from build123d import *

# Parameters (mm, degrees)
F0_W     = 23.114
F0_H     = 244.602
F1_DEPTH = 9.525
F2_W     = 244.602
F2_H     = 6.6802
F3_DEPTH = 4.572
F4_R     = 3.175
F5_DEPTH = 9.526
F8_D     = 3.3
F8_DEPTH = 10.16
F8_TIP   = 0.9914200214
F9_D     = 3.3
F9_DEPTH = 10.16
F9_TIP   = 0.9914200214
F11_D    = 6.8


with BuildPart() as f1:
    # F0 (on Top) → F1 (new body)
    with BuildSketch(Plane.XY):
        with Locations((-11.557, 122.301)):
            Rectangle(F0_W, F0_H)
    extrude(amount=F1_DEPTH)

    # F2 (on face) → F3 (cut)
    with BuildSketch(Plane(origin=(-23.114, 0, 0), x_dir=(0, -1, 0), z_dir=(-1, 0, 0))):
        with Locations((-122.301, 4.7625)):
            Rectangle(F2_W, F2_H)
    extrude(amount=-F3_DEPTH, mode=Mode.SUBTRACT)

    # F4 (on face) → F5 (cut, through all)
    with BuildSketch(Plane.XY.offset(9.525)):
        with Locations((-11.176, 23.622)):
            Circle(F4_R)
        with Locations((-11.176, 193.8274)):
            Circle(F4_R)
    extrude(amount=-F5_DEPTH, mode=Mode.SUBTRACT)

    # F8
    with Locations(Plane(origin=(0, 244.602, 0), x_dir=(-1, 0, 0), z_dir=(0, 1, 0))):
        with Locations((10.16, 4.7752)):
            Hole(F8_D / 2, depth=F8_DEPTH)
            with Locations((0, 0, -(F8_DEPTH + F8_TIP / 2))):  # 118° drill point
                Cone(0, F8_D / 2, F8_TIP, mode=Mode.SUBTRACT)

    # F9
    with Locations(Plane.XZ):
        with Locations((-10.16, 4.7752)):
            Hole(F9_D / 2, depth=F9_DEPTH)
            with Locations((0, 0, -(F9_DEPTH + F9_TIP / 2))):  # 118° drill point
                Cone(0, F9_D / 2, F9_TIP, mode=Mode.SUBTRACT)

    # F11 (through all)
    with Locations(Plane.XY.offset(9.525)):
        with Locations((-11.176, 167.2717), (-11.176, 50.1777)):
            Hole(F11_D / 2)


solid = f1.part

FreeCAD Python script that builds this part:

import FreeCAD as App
import Part
import Sketcher

V = App.Vector
Q = App.Units.Quantity


def add_polygon(sketch, points):
    """Adds a closed chain of lines whose ends are joined by coincident constraints."""
    first, n = sketch.GeometryCount, len(points)
    for a, b in zip(points, points[1:] + points[:1]):
        sketch.addGeometry(Part.LineSegment(App.Vector(*a, 0), App.Vector(*b, 0)), False)
    for i in range(n):
        sketch.addConstraint(Sketcher.Constraint("Coincident", first + i, 2, first + (i + 1) % n, 1))

doc = App.newDocument("Part")
body = doc.addObject("PartDesign::Body", "Body")

sketch1 = body.newObject("Sketcher::SketchObject", "Sketch")
sketch1.AttachmentSupport = (doc.getObject("XY_Plane"), [""])
sketch1.MapMode = "FlatFace"
add_polygon(sketch1, [(-23, 245), (-23, 0), (0, 0), (0, 245)])
sketch1.addConstraint([
    Sketcher.Constraint("Vertical", 0),
    Sketcher.Constraint("Horizontal", 1),
    Sketcher.Constraint("Vertical", 2),
    Sketcher.Constraint("Horizontal", 3),
    Sketcher.Constraint("Coincident", 1, 2, -1, 1),
    Sketcher.Constraint("DistanceX", 1, 1, 1, 2, Q("0.91 in")),
    Sketcher.Constraint("DistanceY", 0, 2, 0, 1, Q("9.63 in")),
])
pad1 = body.newObject("PartDesign::Pad", "Pad")
pad1.Profile = sketch1
pad1.Length = Q("0.375 in")

sketch2 = body.newObject("Sketcher::SketchObject", "Sketch001")
sketch2.AttachmentSupport = (doc.getObject("YZ_Plane"), [""])
sketch2.MapMode = "FlatFace"
sketch2.AttachmentOffset = App.Placement(V(0, 0, -0.91 * 25.4), App.Rotation())
add_polygon(sketch2, [(245, 8), (245, 1), (0, 1), (0, 8)])
sketch2.addConstraint([
    Sketcher.Constraint("Vertical", 0),
    Sketcher.Constraint("Horizontal", 1),
    Sketcher.Constraint("Vertical", 2),
    Sketcher.Constraint("Horizontal", 3),
    Sketcher.Constraint("PointOnObject", 1, 2, -2),
    Sketcher.Constraint("DistanceX", 1, 2, 1, 1, Q("9.63 in")),
    Sketcher.Constraint("DistanceY", 0, 2, 0, 1, Q("0.263 in")),
    Sketcher.Constraint("DistanceY", -1, 1, 0, 2, Q("0.056 in")),
])
pocket1 = body.newObject("PartDesign::Pocket", "Pocket")
pocket1.Profile = sketch2
pocket1.Length = Q("0.18 in")
pocket1.Reversed = True

sketch3 = body.newObject("Sketcher::SketchObject", "Sketch002")
sketch3.AttachmentSupport = (doc.getObject("XY_Plane"), [""])
sketch3.MapMode = "FlatFace"
sketch3.AttachmentOffset = App.Placement(V(0, 0, 0.375 * 25.4), App.Rotation())
sketch3.addGeometry([
    Part.Circle(V(-11.2, 23.6, 0), V(0, 0, 1), 3.2),
    Part.Circle(V(-11.2, 193.8, 0), V(0, 0, 1), 3.2),
], False)
sketch3.addConstraint([
    Sketcher.Constraint("Equal", 0, 1),
    Sketcher.Constraint("Vertical", 0, 3, 1, 3),
    Sketcher.Constraint("Diameter", 0, Q("0.25 in")),
    Sketcher.Constraint("DistanceX", 0, 3, -1, 1, Q("0.44 in")),
    Sketcher.Constraint("DistanceY", -1, 1, 0, 3, Q("0.93 in")),
    Sketcher.Constraint("DistanceY", -1, 1, 1, 3, Q("7.631 in")),
])
pocket2 = body.newObject("PartDesign::Pocket", "Pocket001")
pocket2.Profile = sketch3
pocket2.Type = "ThroughAll"

sketch4 = body.newObject("Sketcher::SketchObject", "Sketch003")
sketch4.AttachmentSupport = (doc.getObject("XZ_Plane"), [""])
sketch4.MapMode = "FlatFace"
sketch4.AttachmentOffset = App.Placement(V(0, 0, -9.63 * 25.4), App.Rotation())
sketch4.addGeometry(Part.Circle(V(-10.2, 4.8, 0), V(0, 0, 1), 1.6), False)
sketch4.addConstraint([
    Sketcher.Constraint("DistanceX", 0, 3, -1, 1, Q("0.4 in")),
    Sketcher.Constraint("Diameter", 0, Q("3.3 mm")),
    Sketcher.Constraint("DistanceY", -1, 1, 0, 3, Q("0.188 in")),
])
doc.recompute()
hole = body.newObject("PartDesign::Hole", "Hole")
hole.Profile = sketch4
hole.ThreadType = "None"
hole.Diameter = 3.3
hole.DepthType = "Dimension"
hole.Depth = Q("0.4 in")
hole.DrillPoint = "Angled"
hole.DrillPointAngle = 118
hole.Reversed = True

sketch5 = body.newObject("Sketcher::SketchObject", "Sketch004")
sketch5.AttachmentSupport = (doc.getObject("XZ_Plane"), [""])
sketch5.MapMode = "FlatFace"
sketch5.addGeometry(Part.Circle(V(-10.2, 4.8, 0), V(0, 0, 1), 1.6), False)
sketch5.addConstraint([
    Sketcher.Constraint("DistanceX", 0, 3, -1, 1, Q("0.4 in")),
    Sketcher.Constraint("Diameter", 0, Q("3.3 mm")),
    Sketcher.Constraint("DistanceY", -1, 1, 0, 3, Q("0.188 in")),
])
doc.recompute()
hole2 = body.newObject("PartDesign::Hole", "Hole001")
hole2.Profile = sketch5
hole2.ThreadType = "None"
hole2.Diameter = 3.3
hole2.DepthType = "Dimension"
hole2.Depth = Q("0.4 in")
hole2.DrillPoint = "Angled"
hole2.DrillPointAngle = 118

sketch6 = body.newObject("Sketcher::SketchObject", "Sketch005")
sketch6.AttachmentSupport = (doc.getObject("XY_Plane"), [""])
sketch6.MapMode = "FlatFace"
sketch6.AttachmentOffset = App.Placement(V(0, 0, 0.375 * 25.4), App.Rotation())
sketch6.addGeometry([
    Part.Circle(V(-11.2, 167.3, 0), V(0, 0, 1), 3.4),
    Part.Circle(V(-11.2, 50.2, 0), V(0, 0, 1), 3.4),
], False)
sketch6.addConstraint([
    Sketcher.Constraint("Equal", 0, 1),
    Sketcher.Constraint("Vertical", 0, 3, 1, 3),
    Sketcher.Constraint("Diameter", 0, Q("6.8 mm")),
    Sketcher.Constraint("DistanceX", 0, 3, -1, 1, Q("0.44 in")),
    Sketcher.Constraint("DistanceY", 1, 3, 0, 3, Q("4.61 in")),
    Sketcher.Constraint("DistanceY", -1, 1, 0, 3, Q("6.5855 in")),
])
doc.recompute()
hole3 = body.newObject("PartDesign::Hole", "Hole002")
hole3.Profile = sketch6
hole3.ThreadType = "None"
hole3.Diameter = 6.8
hole3.DepthType = "ThroughAll"

doc.recompute()
